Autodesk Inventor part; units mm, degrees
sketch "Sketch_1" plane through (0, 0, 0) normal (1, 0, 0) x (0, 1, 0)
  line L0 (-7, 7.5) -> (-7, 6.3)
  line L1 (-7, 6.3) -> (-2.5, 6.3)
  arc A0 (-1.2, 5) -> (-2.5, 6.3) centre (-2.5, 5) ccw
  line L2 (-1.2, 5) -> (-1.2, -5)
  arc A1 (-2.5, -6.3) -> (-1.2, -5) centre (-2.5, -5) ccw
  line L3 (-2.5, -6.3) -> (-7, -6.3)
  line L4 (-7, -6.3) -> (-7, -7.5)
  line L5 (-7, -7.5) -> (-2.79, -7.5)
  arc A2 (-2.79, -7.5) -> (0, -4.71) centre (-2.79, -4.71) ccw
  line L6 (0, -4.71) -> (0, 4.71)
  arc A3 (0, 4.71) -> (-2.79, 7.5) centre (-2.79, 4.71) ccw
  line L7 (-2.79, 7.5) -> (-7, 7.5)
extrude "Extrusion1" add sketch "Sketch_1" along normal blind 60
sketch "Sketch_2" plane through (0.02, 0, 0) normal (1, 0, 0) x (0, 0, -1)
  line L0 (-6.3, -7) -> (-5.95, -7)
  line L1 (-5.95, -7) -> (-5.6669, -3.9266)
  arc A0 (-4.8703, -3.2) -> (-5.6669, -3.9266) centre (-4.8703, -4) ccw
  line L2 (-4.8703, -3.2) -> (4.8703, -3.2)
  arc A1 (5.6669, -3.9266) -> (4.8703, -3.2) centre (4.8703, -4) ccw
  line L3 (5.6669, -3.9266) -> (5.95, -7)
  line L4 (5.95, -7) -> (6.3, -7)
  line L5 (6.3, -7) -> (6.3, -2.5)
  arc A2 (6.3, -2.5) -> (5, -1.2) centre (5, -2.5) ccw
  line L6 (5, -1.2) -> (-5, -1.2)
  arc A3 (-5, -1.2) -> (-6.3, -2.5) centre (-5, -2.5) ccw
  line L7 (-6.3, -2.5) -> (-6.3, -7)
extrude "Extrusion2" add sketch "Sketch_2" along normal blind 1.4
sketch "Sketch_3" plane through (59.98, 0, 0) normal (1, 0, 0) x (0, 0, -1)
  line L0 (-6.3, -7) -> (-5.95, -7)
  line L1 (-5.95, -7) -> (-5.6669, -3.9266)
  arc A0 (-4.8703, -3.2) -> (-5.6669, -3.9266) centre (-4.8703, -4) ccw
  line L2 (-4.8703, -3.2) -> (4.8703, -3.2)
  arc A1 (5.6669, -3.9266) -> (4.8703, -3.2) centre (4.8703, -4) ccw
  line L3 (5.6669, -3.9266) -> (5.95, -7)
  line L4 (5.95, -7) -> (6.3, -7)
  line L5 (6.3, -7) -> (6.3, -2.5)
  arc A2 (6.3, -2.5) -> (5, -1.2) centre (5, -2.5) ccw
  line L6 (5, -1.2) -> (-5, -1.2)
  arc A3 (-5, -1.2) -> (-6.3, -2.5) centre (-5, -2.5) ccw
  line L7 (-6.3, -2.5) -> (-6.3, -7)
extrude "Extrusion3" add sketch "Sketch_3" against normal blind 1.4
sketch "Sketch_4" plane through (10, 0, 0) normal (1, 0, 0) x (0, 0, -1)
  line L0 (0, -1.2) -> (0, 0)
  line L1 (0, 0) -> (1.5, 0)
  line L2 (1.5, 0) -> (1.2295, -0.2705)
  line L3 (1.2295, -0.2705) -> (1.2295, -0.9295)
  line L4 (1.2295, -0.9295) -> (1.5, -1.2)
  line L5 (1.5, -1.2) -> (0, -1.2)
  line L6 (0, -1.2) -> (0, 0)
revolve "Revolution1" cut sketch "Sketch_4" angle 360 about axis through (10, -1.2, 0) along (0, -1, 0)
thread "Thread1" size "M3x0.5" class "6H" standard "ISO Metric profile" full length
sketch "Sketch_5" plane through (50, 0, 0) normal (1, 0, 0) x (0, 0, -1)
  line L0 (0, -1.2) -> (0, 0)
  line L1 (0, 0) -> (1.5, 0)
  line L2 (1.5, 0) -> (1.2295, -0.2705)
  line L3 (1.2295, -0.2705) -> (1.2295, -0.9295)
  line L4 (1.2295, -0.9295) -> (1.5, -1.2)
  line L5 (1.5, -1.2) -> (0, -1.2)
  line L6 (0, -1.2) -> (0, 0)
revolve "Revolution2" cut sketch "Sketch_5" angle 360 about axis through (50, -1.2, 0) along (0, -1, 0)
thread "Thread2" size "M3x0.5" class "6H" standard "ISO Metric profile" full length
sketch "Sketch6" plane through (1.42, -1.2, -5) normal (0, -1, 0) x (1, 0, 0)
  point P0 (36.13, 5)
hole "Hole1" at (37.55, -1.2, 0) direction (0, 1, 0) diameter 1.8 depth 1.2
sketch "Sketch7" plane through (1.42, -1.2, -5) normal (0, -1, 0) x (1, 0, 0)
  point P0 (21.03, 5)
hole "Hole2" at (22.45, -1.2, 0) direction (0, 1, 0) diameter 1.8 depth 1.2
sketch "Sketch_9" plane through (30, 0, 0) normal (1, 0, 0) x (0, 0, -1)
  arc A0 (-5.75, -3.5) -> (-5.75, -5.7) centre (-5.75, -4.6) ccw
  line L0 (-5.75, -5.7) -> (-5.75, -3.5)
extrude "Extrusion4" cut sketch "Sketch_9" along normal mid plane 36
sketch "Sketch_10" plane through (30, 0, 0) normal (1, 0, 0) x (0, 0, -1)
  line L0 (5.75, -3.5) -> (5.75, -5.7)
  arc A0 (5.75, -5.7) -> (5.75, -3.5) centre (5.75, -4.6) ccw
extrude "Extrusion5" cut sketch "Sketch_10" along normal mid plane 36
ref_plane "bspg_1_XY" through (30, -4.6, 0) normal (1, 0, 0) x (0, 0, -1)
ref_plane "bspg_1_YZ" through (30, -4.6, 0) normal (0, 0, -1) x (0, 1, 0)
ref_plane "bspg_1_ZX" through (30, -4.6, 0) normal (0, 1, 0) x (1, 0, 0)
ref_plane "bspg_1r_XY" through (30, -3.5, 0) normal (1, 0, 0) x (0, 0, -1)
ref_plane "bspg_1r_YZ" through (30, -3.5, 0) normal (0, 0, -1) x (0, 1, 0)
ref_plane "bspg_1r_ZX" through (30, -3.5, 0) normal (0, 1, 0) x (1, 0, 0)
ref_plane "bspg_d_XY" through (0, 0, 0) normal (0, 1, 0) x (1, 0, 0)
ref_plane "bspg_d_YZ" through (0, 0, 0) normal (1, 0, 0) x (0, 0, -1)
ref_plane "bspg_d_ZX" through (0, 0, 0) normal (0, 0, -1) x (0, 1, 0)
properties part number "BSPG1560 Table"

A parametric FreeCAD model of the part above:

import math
import FreeCAD as App
import Part
import Sketcher


def add_polygon(sketch, points):
    """Adds a closed chain of lines whose ends are joined by coincident constraints."""
    first, n = sketch.GeometryCount, len(points)
    for a, b in zip(points, points[1:] + points[:1]):
        sketch.addGeometry(Part.LineSegment(App.Vector(*a, 0), App.Vector(*b, 0)), False)
    for i in range(n):
        sketch.addConstraint(Sketcher.Constraint("Coincident", first + i, 2, first + (i + 1) % n, 1))

doc = App.newDocument("Part")
params = doc.addObject("Spreadsheet::Sheet", "Params")
for row, (alias, value) in enumerate([
    ("sketch1_radius", "1.3 mm"),
    ("sketch1_height", "10 mm"),
    ("sketch1_radius2", "2.79 mm"),
    ("sketch1_width", "4.5 mm"),
    ("sketch1_height2", "1.2 mm"),
    ("pad1_length", "60 mm"),
    ("sketch2_radius", "0.8 mm"),
    ("sketch2_radius2", "1.3 mm"),
    ("sketch2_height", "10 mm"),
    ("sketch2_width", "4.5 mm"),
    ("sketch2_height2", "0.35 mm"),
    ("pad2_length", "1.4 mm"),
    ("sketch3_radius", "0.8 mm"),
    ("sketch3_radius2", "1.3 mm"),
    ("sketch3_height", "10 mm"),
    ("sketch3_width", "4.5 mm"),
    ("sketch3_height2", "0.35 mm"),
    ("pad3_length", "1.4 mm"),
    ("sketch4_width", "1.2 mm"),
    ("sketch4_height", "1.5 mm"),
    ("groove_angle", "360 deg"),
    ("sketch5_width", "1.2 mm"),
    ("sketch5_height", "1.5 mm"),
    ("groove2_angle", "360 deg"),
    ("sketch6_diameter", "1.8 mm"),
    ("hole_diameter", "1.8 mm"),
    ("hole_depth", "1.2 mm"),
    ("sketch7_diameter", "1.8 mm"),
    ("hole2_diameter", "1.8 mm"),
    ("hole2_depth", "1.2 mm"),
    ("sketch8_radius", "1.1 mm"),
    ("pocket1_length", "36 mm"),
    ("sketch9_radius", "1.1 mm"),
    ("pocket2_length", "36 mm"),
], start=1):
    params.set(f"A{row}", alias)
    params.set(f"B{row}", "=" + value)
    params.setAlias(f"B{row}", alias)

body = doc.addObject("PartDesign::Body", "Body")

# Sketch on YZ plane
sketch1 = body.newObject("Sketcher::SketchObject", "Sketch")
sketch1.AttachmentSupport = (doc.getObject("YZ_Plane"), [""])
sketch1.MapMode = "FlatFace"
sketch1.addGeometry([
    Part.LineSegment(App.Vector(-2.79, 7.5, 0), App.Vector(-7, 7.5, 0)),  # 0
    Part.LineSegment(App.Vector(-7, 7.5, 0), App.Vector(-7, 6.3, 0)),  # 1
    Part.LineSegment(App.Vector(-7, 6.3, 0), App.Vector(-2.5, 6.3, 0)),  # 2
    Part.ArcOfCircle(Part.Circle(App.Vector(-2.5, 5, 0), App.Vector(0, 0, 1), 1.3), math.radians(0), math.radians(90)),  # 3
    Part.LineSegment(App.Vector(-1.2, 5, 0), App.Vector(-1.2, -5, 0)),  # 4
    Part.ArcOfCircle(Part.Circle(App.Vector(-2.5, -5, 0), App.Vector(0, 0, 1), 1.3), math.radians(-90), math.radians(0)),  # 5
    Part.LineSegment(App.Vector(-2.5, -6.3, 0), App.Vector(-7, -6.3, 0)),  # 6
    Part.LineSegment(App.Vector(-7, -6.3, 0), App.Vector(-7, -7.5, 0)),  # 7
    Part.LineSegment(App.Vector(-7, -7.5, 0), App.Vector(-2.79, -7.5, 0)),  # 8
    Part.ArcOfCircle(Part.Circle(App.Vector(-2.79, -4.71, 0), App.Vector(0, 0, 1), 2.79), math.radians(-90), math.radians(0)),  # 9
    Part.LineSegment(App.Vector(0, -4.71, 0), App.Vector(0, 4.71, 0)),  # 10
    Part.ArcOfCircle(Part.Circle(App.Vector(-2.79, 4.71, 0), App.Vector(0, 0, 1), 2.79), math.radians(0), math.radians(90)),  # 11
], False)
sketch1.addConstraint([
    Sketcher.Constraint("Coincident", 0, 2, 1, 1),
    Sketcher.Constraint("Coincident", 1, 2, 2, 1),
    Sketcher.Constraint("Tangent", 2, 2, 3, 2),
    Sketcher.Constraint("Tangent", 3, 1, 4, 1),
    Sketcher.Constraint("Tangent", 4, 2, 5, 2),
    Sketcher.Constraint("Tangent", 5, 1, 6, 1),
    Sketcher.Constraint("Coincident", 6, 2, 7, 1),
    Sketcher.Constraint("Coincident", 7, 2, 8, 1),
    Sketcher.Constraint("Tangent", 8, 2, 9, 1),
    Sketcher.Constraint("Tangent", 9, 2, 10, 1),
    Sketcher.Constraint("Tangent", 10, 2, 11, 1),
    Sketcher.Constraint("Tangent", 11, 2, 0, 1),
    Sketcher.Constraint("Horizontal", 0),
    Sketcher.Constraint("Vertical", 1),
    Sketcher.Constraint("Horizontal", 2),
    Sketcher.Constraint("Vertical", 4),
    Sketcher.Constraint("Horizontal", 6),
    Sketcher.Constraint("Vertical", 7),
    Sketcher.Constraint("Horizontal", 8),
    Sketcher.Constraint("Vertical", 10),
    Sketcher.Constraint("Equal", 3, 5),
    Sketcher.Constraint("Equal", 9, 11),
    Sketcher.Constraint("Symmetric", 9, 2, 10, 2, -1, 1),
    Sketcher.Constraint("Symmetric", 1, 2, 6, 2, -1),
    Sketcher.Constraint("Radius", 3, 1.3),
    Sketcher.Constraint("DistanceY", 4, 2, 4, 1, 10.0),
    Sketcher.Constraint("Radius", 9, 2.79),
    Sketcher.Constraint("DistanceX", 2, 1, 2, 2, 4.5),
    Sketcher.Constraint("DistanceY", 1, 2, 1, 1, 1.2),
    Sketcher.Constraint("DistanceX", 0, 2, -1, 1, 7.0),
])
sketch1.setExpression("Constraints[24]", "Params.sketch1_radius")
sketch1.setExpression("Constraints[25]", "Params.sketch1_height")
sketch1.setExpression("Constraints[26]", "Params.sketch1_radius2")
sketch1.setExpression("Constraints[27]", "Params.sketch1_width")
sketch1.setExpression("Constraints[28]", "Params.sketch1_height2")
pad1 = body.newObject("PartDesign::Pad", "Pad")
pad1.Profile = sketch1
pad1.setExpression("Length", "Params.pad1_length")

# Sketch on YZ plane
sketch2 = body.newObject("Sketcher::SketchObject", "Sketch001")
sketch2.AttachmentSupport = (doc.getObject("YZ_Plane"), [""])
sketch2.MapMode = "FlatFace"
sketch2.AttachmentOffset = App.Placement(App.Vector(0, 0, 0.02), App.Rotation())
sketch2.addGeometry([
    Part.LineSegment(App.Vector(-2.5, 6.3, 0), App.Vector(-7, 6.3, 0)),  # 0
    Part.LineSegment(App.Vector(-7, 6.3, 0), App.Vector(-7, 5.95, 0)),  # 1
    Part.LineSegment(App.Vector(-7, 5.95, 0), App.Vector(-3.9266, 5.6669, 0)),  # 2
    Part.ArcOfCircle(Part.Circle(App.Vector(-4, 4.8703, 0), App.Vector(0, 0, 1), 0.8), math.radians(0), math.radians(84.73554)),  # 3
    Part.LineSegment(App.Vector(-3.2, 4.8703, 0), App.Vector(-3.2, -4.8703, 0)),  # 4
    Part.ArcOfCircle(Part.Circle(App.Vector(-4, -4.8703, 0), App.Vector(0, 0, 1), 0.799974), math.radians(-84.73554), math.radians(0)),  # 5
    Part.LineSegment(App.Vector(-3.9266, -5.6669, 0), App.Vector(-7, -5.95, 0)),  # 6
    Part.LineSegment(App.Vector(-7, -5.95, 0), App.Vector(-7, -6.3, 0)),  # 7
    Part.LineSegment(App.Vector(-7, -6.3, 0), App.Vector(-2.5, -6.3, 0)),  # 8
    Part.ArcOfCircle(Part.Circle(App.Vector(-2.5, -5, 0), App.Vector(0, 0, 1), 1.3), math.radians(-90), math.radians(0)),  # 9
    Part.LineSegment(App.Vector(-1.2, -5, 0), App.Vector(-1.2, 5, 0)),  # 10
    Part.ArcOfCircle(Part.Circle(App.Vector(-2.5, 5, 0), App.Vector(0, 0, 1), 1.3), math.radians(0), math.radians(90)),  # 11
], False)
sketch2.addConstraint([
    Sketcher.Constraint("Coincident", 0, 2, 1, 1),
    Sketcher.Constraint("Coincident", 1, 2, 2, 1),
    Sketcher.Constraint("Tangent", 2, 2, 3, 2),
    Sketcher.Constraint("Tangent", 3, 1, 4, 1),
    Sketcher.Constraint("Tangent", 4, 2, 5, 2),
    Sketcher.Constraint("Tangent", 5, 1, 6, 1),
    Sketcher.Constraint("Coincident", 6, 2, 7, 1),
    Sketcher.Constraint("Coincident", 7, 2, 8, 1),
    Sketcher.Constraint("Tangent", 8, 2, 9, 1),
    Sketcher.Constraint("Tangent", 9, 2, 10, 1),
    Sketcher.Constraint("Tangent", 10, 2, 11, 1),
    Sketcher.Constraint("Tangent", 11, 2, 0, 1),
    Sketcher.Constraint("Horizontal", 0),
    Sketcher.Constraint("Vertical", 1),
    Sketcher.Constraint("Vertical", 4),
    Sketcher.Constraint("Vertical", 7),
    Sketcher.Constraint("Horizontal", 8),
    Sketcher.Constraint("Vertical", 10),
    Sketcher.Constraint("Equal", 3, 5),
    Sketcher.Constraint("Equal", 9, 11),
    Sketcher.Constraint("Symmetric", 2, 2, 5, 1, -1),
    Sketcher.Constraint("Symmetric", 0, 2, 7, 2, -1),
    Sketcher.Constraint("Radius", 3, 0.8),
    Sketcher.Constraint("Radius", 9, 1.3),
    Sketcher.Constraint("DistanceY", 10, 1, 10, 2, 10.0),
    Sketcher.Constraint("DistanceX", 0, 2, 0, 1, 4.5),
    Sketcher.Constraint("DistanceX", 3, 3, -1, 1, 4.0),
    Sketcher.Constraint("DistanceX", 0, 2, -1, 1, 7.0),
    Sketcher.Constraint("DistanceY", 1, 2, 1, 1, 0.35),
    Sketcher.Constraint("DistanceY", 4, 2, 4, 1, 9.7406),
])
sketch2.setExpression("Constraints[22]", "Params.sketch2_radius")
sketch2.setExpression("Constraints[23]", "Params.sketch2_radius2")
sketch2.setExpression("Constraints[24]", "Params.sketch2_height")
sketch2.setExpression("Constraints[25]", "Params.sketch2_width")
sketch2.setExpression("Constraints[28]", "Params.sketch2_height2")
pad2 = body.newObject("PartDesign::Pad", "Pad001")
pad2.Profile = sketch2
pad2.setExpression("Length", "Params.pad2_length")

# Sketch on YZ plane
sketch3 = body.newObject("Sketcher::SketchObject", "Sketch002")
sketch3.AttachmentSupport = (doc.getObject("YZ_Plane"), [""])
sketch3.MapMode = "FlatFace"
sketch3.AttachmentOffset = App.Placement(App.Vector(0, 0, 59.98), App.Rotation())
sketch3.addGeometry([
    Part.LineSegment(App.Vector(-2.5, 6.3, 0), App.Vector(-7, 6.3, 0)),  # 0
    Part.LineSegment(App.Vector(-7, 6.3, 0), App.Vector(-7, 5.95, 0)),  # 1
    Part.LineSegment(App.Vector(-7, 5.95, 0), App.Vector(-3.9266, 5.6669, 0)),  # 2
    Part.ArcOfCircle(Part.Circle(App.Vector(-4, 4.8703, 0), App.Vector(0, 0, 1), 0.8), math.radians(0), math.radians(84.73554)),  # 3
    Part.LineSegment(App.Vector(-3.2, 4.8703, 0), App.Vector(-3.2, -4.8703, 0)),  # 4
    Part.ArcOfCircle(Part.Circle(App.Vector(-4, -4.8703, 0), App.Vector(0, 0, 1), 0.799974), math.radians(-84.73554), math.radians(0)),  # 5
    Part.LineSegment(App.Vector(-3.9266, -5.6669, 0), App.Vector(-7, -5.95, 0)),  # 6
    Part.LineSegment(App.Vector(-7, -5.95, 0), App.Vector(-7, -6.3, 0)),  # 7
    Part.LineSegment(App.Vector(-7, -6.3, 0), App.Vector(-2.5, -6.3, 0)),  # 8
    Part.ArcOfCircle(Part.Circle(App.Vector(-2.5, -5, 0), App.Vector(0, 0, 1), 1.3), math.radians(-90), math.radians(0)),  # 9
    Part.LineSegment(App.Vector(-1.2, -5, 0), App.Vector(-1.2, 5, 0)),  # 10
    Part.ArcOfCircle(Part.Circle(App.Vector(-2.5, 5, 0), App.Vector(0, 0, 1), 1.3), math.radians(0), math.radians(90)),  # 11
], False)
sketch3.addConstraint([
    Sketcher.Constraint("Coincident", 0, 2, 1, 1),
    Sketcher.Constraint("Coincident", 1, 2, 2, 1),
    Sketcher.Constraint("Tangent", 2, 2, 3, 2),
    Sketcher.Constraint("Tangent", 3, 1, 4, 1),
    Sketcher.Constraint("Tangent", 4, 2, 5, 2),
    Sketcher.Constraint("Tangent", 5, 1, 6, 1),
    Sketcher.Constraint("Coincident", 6, 2, 7, 1),
    Sketcher.Constraint("Coincident", 7, 2, 8, 1),
    Sketcher.Constraint("Tangent", 8, 2, 9, 1),
    Sketcher.Constraint("Tangent", 9, 2, 10, 1),
    Sketcher.Constraint("Tangent", 10, 2, 11, 1),
    Sketcher.Constraint("Tangent", 11, 2, 0, 1),
    Sketcher.Constraint("Horizontal", 0),
    Sketcher.Constraint("Vertical", 1),
    Sketcher.Constraint("Vertical", 4),
    Sketcher.Constraint("Vertical", 7),
    Sketcher.Constraint("Horizontal", 8),
    Sketcher.Constraint("Vertical", 10),
    Sketcher.Constraint("Equal", 3, 5),
    Sketcher.Constraint("Equal", 9, 11),
    Sketcher.Constraint("Symmetric", 2, 2, 5, 1, -1),
    Sketcher.Constraint("Symmetric", 0, 2, 7, 2, -1),
    Sketcher.Constraint("Radius", 3, 0.8),
    Sketcher.Constraint("Radius", 9, 1.3),
    Sketcher.Constraint("DistanceY", 10, 1, 10, 2, 10.0),
    Sketcher.Constraint("DistanceX", 0, 2, 0, 1, 4.5),
    Sketcher.Constraint("DistanceX", 3, 3, -1, 1, 4.0),
    Sketcher.Constraint("DistanceX", 0, 2, -1, 1, 7.0),
    Sketcher.Constraint("DistanceY", 1, 2, 1, 1, 0.35),
    Sketcher.Constraint("DistanceY", 4, 2, 4, 1, 9.7406),
])
sketch3.setExpression("Constraints[22]", "Params.sketch3_radius")
sketch3.setExpression("Constraints[23]", "Params.sketch3_radius2")
sketch3.setExpression("Constraints[24]", "Params.sketch3_height")
sketch3.setExpression("Constraints[25]", "Params.sketch3_width")
sketch3.setExpression("Constraints[28]", "Params.sketch3_height2")
pad3 = body.newObject("PartDesign::Pad", "Pad002")
pad3.Profile = sketch3
pad3.setExpression("Length", "Params.pad3_length")
pad3.Reversed = True

# Sketch on YZ plane
sketch4 = body.newObject("Sketcher::SketchObject", "Sketch003")
sketch4.AttachmentSupport = (doc.getObject("YZ_Plane"), [""])
sketch4.MapMode = "FlatFace"
sketch4.AttachmentOffset = App.Placement(App.Vector(0, 0, 10), App.Rotation())
add_polygon(sketch4, [(0, 0), (-1.2, 0), (-1.2, -1.5), (-0.9295, -1.2295), (-0.2705, -1.2295), (0, -1.5)])  # lines 0-5
sketch4.addConstraint([
    Sketcher.Constraint("Horizontal", 0),
    Sketcher.Constraint("Vertical", 1),
    Sketcher.Constraint("Horizontal", 3),
    Sketcher.Constraint("Vertical", 5),
    Sketcher.Constraint("Coincident", 5, 2, -1, 1),
    Sketcher.Constraint("Perpendicular", 2, 4),
    Sketcher.Constraint("Horizontal", 1, 2, 4, 2),
    Sketcher.Constraint("Equal", 2, 4),
    Sketcher.Constraint("DistanceX", 0, 2, 0, 1, 1.2),
    Sketcher.Constraint("DistanceY", 1, 2, 1, 1, 1.5),
    Sketcher.Constraint("DistanceX", 3, 1, 3, 2, 0.659),
])
sketch4.setExpression("Constraints[14]", "Params.sketch4_width")
sketch4.setExpression("Constraints[15]", "Params.sketch4_height")
groove = body.newObject("PartDesign::Groove", "Groove")
groove.Profile = sketch4
groove.ReferenceAxis = (sketch4, ["H_Axis"])
groove.setExpression("Angle", "Params.groove_angle")

# Sketch on YZ plane
sketch5 = body.newObject("Sketcher::SketchObject", "Sketch004")
sketch5.AttachmentSupport = (doc.getObject("YZ_Plane"), [""])
sketch5.MapMode = "FlatFace"
sketch5.AttachmentOffset = App.Placement(App.Vector(0, 0, 50), App.Rotation())
add_polygon(sketch5, [(0, 0), (-1.2, 0), (-1.2, -1.5), (-0.9295, -1.2295), (-0.2705, -1.2295), (0, -1.5)])  # lines 0-5
sketch5.addConstraint([
    Sketcher.Constraint("Horizontal", 0),
    Sketcher.Constraint("Vertical", 1),
    Sketcher.Constraint("Horizontal", 3),
    Sketcher.Constraint("Vertical", 5),
    Sketcher.Constraint("Coincident", 5, 2, -1, 1),
    Sketcher.Constraint("Perpendicular", 2, 4),
    Sketcher.Constraint("Horizontal", 1, 2, 4, 2),
    Sketcher.Constraint("Equal", 2, 4),
    Sketcher.Constraint("DistanceX", 0, 2, 0, 1, 1.2),
    Sketcher.Constraint("DistanceY", 1, 2, 1, 1, 1.5),
    Sketcher.Constraint("DistanceX", 3, 1, 3, 2, 0.659),
])
sketch5.setExpression("Constraints[14]", "Params.sketch5_width")
sketch5.setExpression("Constraints[15]", "Params.sketch5_height")
groove2 = body.newObject("PartDesign::Groove", "Groove001")
groove2.Profile = sketch5
groove2.ReferenceAxis = (sketch5, ["H_Axis"])
groove2.setExpression("Angle", "Params.groove2_angle")

# Sketch on XZ plane
sketch6 = body.newObject("Sketcher::SketchObject", "Sketch005")
sketch6.AttachmentSupport = (doc.getObject("XZ_Plane"), [""])
sketch6.MapMode = "FlatFace"
sketch6.AttachmentOffset = App.Placement(App.Vector(0, 0, 1.2), App.Rotation())
sketch6.addGeometry(Part.Circle(App.Vector(37.55, 0, 0), App.Vector(0, 0, 1), 0.9), False)
sketch6.addConstraint([
    Sketcher.Constraint("PointOnObject", 0, 3, -1),
    Sketcher.Constraint("Diameter", 0, 1.8),
    Sketcher.Constraint("DistanceX", -1, 1, 0, 3, 37.55),
])
sketch6.setExpression("Constraints[1]", "Params.sketch6_diameter")
doc.recompute()
hole = body.newObject("PartDesign::Hole", "Hole")
hole.Profile = sketch6
hole.ThreadType = "None"
hole.setExpression("Diameter", "Params.hole_diameter")
hole.DepthType = "Dimension"
hole.setExpression("Depth", "Params.hole_depth")
hole.DrillPoint = "Flat"

# Sketch on XZ plane
sketch7 = body.newObject("Sketcher::SketchObject", "Sketch006")
sketch7.AttachmentSupport = (doc.getObject("XZ_Plane"), [""])
sketch7.MapMode = "FlatFace"
sketch7.AttachmentOffset = App.Placement(App.Vector(0, 0, 1.2), App.Rotation())
sketch7.addGeometry(Part.Circle(App.Vector(22.45, 0, 0), App.Vector(0, 0, 1), 0.9), False)
sketch7.addConstraint([
    Sketcher.Constraint("PointOnObject", 0, 3, -1),
    Sketcher.Constraint("Diameter", 0, 1.8),
    Sketcher.Constraint("DistanceX", -1, 1, 0, 3, 22.45),
])
sketch7.setExpression("Constraints[1]", "Params.sketch7_diameter")
doc.recompute()
hole2 = body.newObject("PartDesign::Hole", "Hole001")
hole2.Profile = sketch7
hole2.ThreadType = "None"
hole2.setExpression("Diameter", "Params.hole2_diameter")
hole2.DepthType = "Dimension"
hole2.setExpression("Depth", "Params.hole2_depth")
hole2.DrillPoint = "Flat"

# Sketch on YZ plane
sketch8 = body.newObject("Sketcher::SketchObject", "Sketch007")
sketch8.AttachmentSupport = (doc.getObject("YZ_Plane"), [""])
sketch8.MapMode = "FlatFace"
sketch8.AttachmentOffset = App.Placement(App.Vector(0, 0, 30), App.Rotation())
sketch8.addGeometry([
    Part.LineSegment(App.Vector(-5.7, 5.75, 0), App.Vector(-3.5, 5.75, 0)),
    Part.ArcOfCircle(Part.Circle(App.Vector(-4.6, 5.75, 0), App.Vector(0, 0, 1), 1.1), math.radians(0), math.radians(180)),
], False)
sketch8.addConstraint([
    Sketcher.Constraint("Coincident", 0, 1, 1, 2),
    Sketcher.Constraint("Coincident", 1, 1, 0, 2),
    Sketcher.Constraint("Horizontal", 0),
    Sketcher.Constraint("Horizontal", 1, 3, 0, 1),
    Sketcher.Constraint("Radius", 1, 1.1),
    Sketcher.Constraint("DistanceX", 1, 3, -1, 1, 4.6),
    Sketcher.Constraint("DistanceY", -1, 1, 1, 3, 5.75),
])
sketch8.setExpression("Constraints[4]", "Params.sketch8_radius")
pocket1 = body.newObject("PartDesign::Pocket", "Pocket")
pocket1.Profile = sketch8
pocket1.setExpression("Length", "Params.pocket1_length")
pocket1.Midplane = True

# Sketch on YZ plane
sketch9 = body.newObject("Sketcher::SketchObject", "Sketch008")
sketch9.AttachmentSupport = (doc.getObject("YZ_Plane"), [""])
sketch9.MapMode = "FlatFace"
sketch9.AttachmentOffset = App.Placement(App.Vector(0, 0, 30), App.Rotation())
sketch9.addGeometry([
    Part.ArcOfCircle(Part.Circle(App.Vector(-4.6, -5.75, 0), App.Vector(0, 0, 1), 1.1), math.radians(180), math.radians(360)),
    Part.LineSegment(App.Vector(-3.5, -5.75, 0), App.Vector(-5.7, -5.75, 0)),
], False)
sketch9.addConstraint([
    Sketcher.Constraint("Coincident", 0, 1, 1, 2),
    Sketcher.Constraint("Coincident", 1, 1, 0, 2),
    Sketcher.Constraint("Horizontal", 1),
    Sketcher.Constraint("Radius", 0, 1.1),
    Sketcher.Constraint("DistanceX", 0, 3, -1, 1, 4.6),
    Sketcher.Constraint("DistanceY", 0, 3, -1, 1, 5.75),
    Sketcher.Constraint("DistanceY", 0, 1, -1, 1, 5.75),
])
sketch9.setExpression("Constraints[3]", "Params.sketch9_radius")
pocket2 = body.newObject("PartDesign::Pocket", "Pocket001")
pocket2.Profile = sketch9
pocket2.setExpression("Length", "Params.pocket2_length")
pocket2.Midplane = True

doc.recompute()
